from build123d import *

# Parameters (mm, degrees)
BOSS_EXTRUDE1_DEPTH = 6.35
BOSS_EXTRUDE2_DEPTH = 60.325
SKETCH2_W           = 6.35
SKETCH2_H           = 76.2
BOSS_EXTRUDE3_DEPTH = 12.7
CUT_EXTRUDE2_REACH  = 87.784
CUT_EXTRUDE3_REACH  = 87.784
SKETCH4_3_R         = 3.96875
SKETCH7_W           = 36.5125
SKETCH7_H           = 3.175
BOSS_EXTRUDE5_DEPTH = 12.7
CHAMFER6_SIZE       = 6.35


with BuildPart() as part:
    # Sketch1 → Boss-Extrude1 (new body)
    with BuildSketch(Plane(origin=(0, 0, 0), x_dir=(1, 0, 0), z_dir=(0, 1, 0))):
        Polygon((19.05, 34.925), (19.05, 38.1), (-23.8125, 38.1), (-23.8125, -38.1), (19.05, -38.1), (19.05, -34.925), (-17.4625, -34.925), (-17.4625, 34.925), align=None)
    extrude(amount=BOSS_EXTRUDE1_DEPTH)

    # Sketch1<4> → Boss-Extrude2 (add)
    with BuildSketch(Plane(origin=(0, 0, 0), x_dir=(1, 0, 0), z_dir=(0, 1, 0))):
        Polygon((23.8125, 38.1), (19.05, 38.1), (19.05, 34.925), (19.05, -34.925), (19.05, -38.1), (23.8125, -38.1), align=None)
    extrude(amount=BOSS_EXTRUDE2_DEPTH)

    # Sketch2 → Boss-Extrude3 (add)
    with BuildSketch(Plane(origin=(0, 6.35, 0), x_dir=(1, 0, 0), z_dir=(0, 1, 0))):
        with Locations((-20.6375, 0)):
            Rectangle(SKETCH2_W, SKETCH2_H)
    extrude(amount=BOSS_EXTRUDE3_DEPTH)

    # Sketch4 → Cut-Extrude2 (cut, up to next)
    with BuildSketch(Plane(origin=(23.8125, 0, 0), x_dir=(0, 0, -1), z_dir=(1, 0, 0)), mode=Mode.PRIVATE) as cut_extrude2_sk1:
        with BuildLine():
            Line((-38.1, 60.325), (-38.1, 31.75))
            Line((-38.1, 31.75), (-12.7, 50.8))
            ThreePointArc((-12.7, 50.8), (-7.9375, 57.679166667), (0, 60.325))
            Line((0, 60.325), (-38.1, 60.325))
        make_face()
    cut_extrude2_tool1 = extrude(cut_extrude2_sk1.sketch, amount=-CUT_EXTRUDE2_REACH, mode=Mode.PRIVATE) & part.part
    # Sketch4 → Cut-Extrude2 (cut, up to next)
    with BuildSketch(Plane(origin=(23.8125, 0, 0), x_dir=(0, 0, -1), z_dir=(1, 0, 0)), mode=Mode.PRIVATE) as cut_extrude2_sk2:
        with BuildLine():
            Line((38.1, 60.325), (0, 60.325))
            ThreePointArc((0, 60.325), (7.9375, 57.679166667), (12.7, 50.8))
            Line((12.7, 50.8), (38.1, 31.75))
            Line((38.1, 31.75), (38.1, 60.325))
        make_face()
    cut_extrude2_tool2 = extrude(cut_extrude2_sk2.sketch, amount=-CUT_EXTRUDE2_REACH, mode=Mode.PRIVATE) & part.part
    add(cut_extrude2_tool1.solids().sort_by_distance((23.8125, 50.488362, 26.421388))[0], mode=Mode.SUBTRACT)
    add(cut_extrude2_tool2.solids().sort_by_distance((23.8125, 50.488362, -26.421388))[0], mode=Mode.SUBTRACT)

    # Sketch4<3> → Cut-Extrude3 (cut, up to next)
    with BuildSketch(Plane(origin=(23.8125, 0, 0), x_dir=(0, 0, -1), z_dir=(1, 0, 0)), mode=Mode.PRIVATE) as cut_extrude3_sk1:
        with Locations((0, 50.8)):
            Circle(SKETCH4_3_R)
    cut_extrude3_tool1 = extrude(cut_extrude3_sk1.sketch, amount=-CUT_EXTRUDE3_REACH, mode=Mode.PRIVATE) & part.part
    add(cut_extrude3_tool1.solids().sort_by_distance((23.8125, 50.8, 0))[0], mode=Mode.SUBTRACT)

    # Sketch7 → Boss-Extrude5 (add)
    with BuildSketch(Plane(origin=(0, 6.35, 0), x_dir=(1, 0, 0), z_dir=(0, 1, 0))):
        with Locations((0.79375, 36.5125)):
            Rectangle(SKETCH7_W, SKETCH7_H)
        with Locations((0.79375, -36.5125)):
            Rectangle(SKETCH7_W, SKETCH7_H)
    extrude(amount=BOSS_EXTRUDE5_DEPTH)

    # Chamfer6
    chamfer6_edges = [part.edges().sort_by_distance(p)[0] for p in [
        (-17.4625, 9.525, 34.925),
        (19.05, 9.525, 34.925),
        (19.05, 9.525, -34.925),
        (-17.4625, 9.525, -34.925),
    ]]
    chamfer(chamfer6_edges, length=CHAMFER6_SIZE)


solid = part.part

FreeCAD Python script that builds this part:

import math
import FreeCAD as App
import Part
import Sketcher
Q = App.Units.Quantity


def edges_at(feature, points):
    """Names of the edges that pass closest to the given points."""
    edges = feature.Shape.Edges
    near = lambda p: min(range(len(edges)), key=lambda i: edges[i].distToShape(Part.Vertex(*p))[0])
    return sorted({f"Edge{near(p) + 1}" for p in points})


def add_polygon(sketch, points):
    """Adds a closed chain of lines whose ends are joined by coincident constraints."""
    first, n = sketch.GeometryCount, len(points)
    for a, b in zip(points, points[1:] + points[:1]):
        sketch.addGeometry(Part.LineSegment(App.Vector(*a, 0), App.Vector(*b, 0)), False)
    for i in range(n):
        sketch.addConstraint(Sketcher.Constraint("Coincident", first + i, 2, first + (i + 1) % n, 1))

doc = App.newDocument("Part")
body = doc.addObject("PartDesign::Body", "Body")

sketch1 = body.newObject("Sketcher::SketchObject", "Sketch")
sketch1.AttachmentSupport = (doc.getObject("XZ_Plane"), [""])
sketch1.MapMode = "FlatFace"
add_polygon(sketch1, [(19.1, -34.9), (19.1, -38.1), (-23.8, -38.1), (-23.8, 38.1), (19.1, 38.1), (19.1, 34.9), (-17.5, 34.9), (-17.5, -34.9)])
sketch1.addConstraint(Sketcher.Constraint("Vertical", 0))
sketch1.addConstraint(Sketcher.Constraint("Horizontal", 1))
sketch1.addConstraint(Sketcher.Constraint("Vertical", 2))
sketch1.addConstraint(Sketcher.Constraint("Horizontal", 3))
sketch1.addConstraint(Sketcher.Constraint("Vertical", 4))
sketch1.addConstraint(Sketcher.Constraint("Horizontal", 5))
sketch1.addConstraint(Sketcher.Constraint("Vertical", 6))
sketch1.addConstraint(Sketcher.Constraint("Horizontal", 7))
sketch1.addConstraint(Sketcher.Constraint("Symmetric", 0, 2, 3, 2, -1))
sketch1.addConstraint(Sketcher.Constraint("Equal", 0, 4))
sketch1.addConstraint(Sketcher.Constraint("DistanceY", 2, 1, 2, 2, Q("3 in")))
sketch1.addConstraint(Sketcher.Constraint("DistanceY", 6, 2, 6, 1, Q("2.75 in")))
sketch1.addConstraint(Sketcher.Constraint("DistanceX", 1, 2, 1, 1, Q("1.6875 in")))
sketch1.addConstraint(Sketcher.Constraint("DistanceX", 5, 2, 5, 1, Q("1.4375 in")))
sketch1.addConstraint(Sketcher.Constraint("DistanceX", -1, 1, 0, 2, Q("0.75 in")))
pad1 = body.newObject("PartDesign::Pad", "Pad")
pad1.Profile = sketch1
pad1.Length = Q("0.25 in")
pad1.Reversed = True

sketch2 = body.newObject("Sketcher::SketchObject", "Sketch001")
sketch2.AttachmentSupport = (doc.getObject("XZ_Plane"), [""])
sketch2.MapMode = "FlatFace"
add_polygon(sketch2, [(23.8, -38.1), (19.1, -38.1), (19.1, 38.1), (23.8, 38.1)])
sketch2.addConstraint(Sketcher.Constraint("Horizontal", 0))
sketch2.addConstraint(Sketcher.Constraint("Vertical", 1))
sketch2.addConstraint(Sketcher.Constraint("Horizontal", 2))
sketch2.addConstraint(Sketcher.Constraint("Vertical", 3))
sketch2.addConstraint(Sketcher.Constraint("DistanceY", 1, 1, 1, 2, Q("3 in")))
sketch2.addConstraint(Sketcher.Constraint("DistanceY", 0, 2, -1, 1, Q("1.5 in")))
sketch2.addConstraint(Sketcher.Constraint("DistanceX", 0, 2, 0, 1, Q("0.1875 in")))
sketch2.addConstraint(Sketcher.Constraint("DistanceX", -1, 1, 0, 2, Q("0.75 in")))
pad2 = body.newObject("PartDesign::Pad", "Pad001")
pad2.Profile = sketch2
pad2.Length = Q("2.375 in")
pad2.Reversed = True

sketch3 = body.newObject("Sketcher::SketchObject", "Sketch002")
sketch3.AttachmentSupport = (doc.getObject("XZ_Plane"), [""])
sketch3.MapMode = "FlatFace"
sketch3.AttachmentOffset = App.Placement(App.Vector(0, 0, -0.25 * 25.4), App.Rotation())
add_polygon(sketch3, [(-24, -38), (-24, 38), (-17, 38), (-17, -38)])
sketch3.addConstraint(Sketcher.Constraint("Vertical", 0))
sketch3.addConstraint(Sketcher.Constraint("Horizontal", 1))
sketch3.addConstraint(Sketcher.Constraint("Vertical", 2))
sketch3.addConstraint(Sketcher.Constraint("Horizontal", 3))
sketch3.addConstraint(Sketcher.Constraint("DistanceY", 0, 1, 0, 2, Q("3 in")))
sketch3.addConstraint(Sketcher.Constraint("DistanceX", 1, 1, 1, 2, Q("0.25 in")))
sketch3.addConstraint(Sketcher.Constraint("DistanceY", -1, 1, 0, 2, Q("1.5 in")))
sketch3.addConstraint(Sketcher.Constraint("DistanceX", 0, 2, -1, 1, Q("0.9375 in")))
pad3 = body.newObject("PartDesign::Pad", "Pad002")
pad3.Profile = sketch3
pad3.Length = Q("0.5 in")
pad3.Reversed = True

sketch4 = body.newObject("Sketcher::SketchObject", "Sketch003")
sketch4.AttachmentSupport = (doc.getObject("YZ_Plane"), [""])
sketch4.MapMode = "FlatFace"
sketch4.AttachmentOffset = App.Placement(App.Vector(0, 0, 0.9375 * 25.4), App.Rotation())
sketch4.addGeometry(Part.LineSegment(App.Vector(60, 38, 0), App.Vector(32, 38, 0)), False)
sketch4.addGeometry(Part.LineSegment(App.Vector(32, 38, 0), App.Vector(51, 13, 0)), False)
sketch4.addGeometry(Part.ArcOfCircle(Part.Circle(App.Vector(47, 0, 0), App.Vector(0, 0, 1), 13), math.radians(0), math.radians(74)), False)
sketch4.addGeometry(Part.LineSegment(App.Vector(60, 0, 0), App.Vector(60, 38, 0)), False)
sketch4.addConstraint(Sketcher.Constraint("Coincident", 0, 2, 1, 1))
sketch4.addConstraint(Sketcher.Constraint("Coincident", 1, 2, 2, 2))
sketch4.addConstraint(Sketcher.Constraint("Tangent", 2, 1, 3, 1))
sketch4.addConstraint(Sketcher.Constraint("Coincident", 3, 2, 0, 1))
sketch4.addConstraint(Sketcher.Constraint("Horizontal", 0))
sketch4.addConstraint(Sketcher.Constraint("Vertical", 3))
sketch4.addConstraint(Sketcher.Constraint("PointOnObject", 2, 3, -1))
sketch4.addConstraint(Sketcher.Constraint("DistanceY", 3, 1, 3, 2, Q("1.5 in")))
sketch4.addConstraint(Sketcher.Constraint("DistanceX", -1, 1, 1, 2, Q("2 in")))
sketch4.addConstraint(Sketcher.Constraint("DistanceY", 1, 2, 0, 2, Q("1 in")))
sketch4.addConstraint(Sketcher.Constraint("Distance", 1, Q("1.25 in")))
sketch4.addConstraint(Sketcher.Constraint("DistanceX", 0, 2, 0, 1, Q("1.125 in")))
pocket1 = body.newObject("PartDesign::Pocket", "Pocket")
pocket1.Profile = sketch4
pocket1.Type = "UpToFirst"

sketch5 = body.newObject("Sketcher::SketchObject", "Sketch004")
sketch5.AttachmentSupport = (doc.getObject("YZ_Plane"), [""])
sketch5.MapMode = "FlatFace"
sketch5.AttachmentOffset = App.Placement(App.Vector(0, 0, 0.9375 * 25.4), App.Rotation())
sketch5.addGeometry(Part.LineSegment(App.Vector(60, -38, 0), App.Vector(60, 0, 0)), False)
sketch5.addGeometry(Part.ArcOfCircle(Part.Circle(App.Vector(47, 0, 0), App.Vector(0, 0, 1), 13), math.radians(-74), math.radians(0)), False)
sketch5.addGeometry(Part.LineSegment(App.Vector(51, -13, 0), App.Vector(32, -38, 0)), False)
sketch5.addGeometry(Part.LineSegment(App.Vector(32, -38, 0), App.Vector(60, -38, 0)), False)
sketch5.addConstraint(Sketcher.Constraint("Tangent", 0, 2, 1, 2))
sketch5.addConstraint(Sketcher.Constraint("Coincident", 1, 1, 2, 1))
sketch5.addConstraint(Sketcher.Constraint("Coincident", 2, 2, 3, 1))
sketch5.addConstraint(Sketcher.Constraint("Coincident", 3, 2, 0, 1))
sketch5.addConstraint(Sketcher.Constraint("Vertical", 0))
sketch5.addConstraint(Sketcher.Constraint("Horizontal", 3))
sketch5.addConstraint(Sketcher.Constraint("PointOnObject", 1, 3, -1))
sketch5.addConstraint(Sketcher.Constraint("DistanceY", 0, 1, 0, 2, Q("1.5 in")))
sketch5.addConstraint(Sketcher.Constraint("DistanceX", -1, 1, 1, 1, Q("2 in")))
sketch5.addConstraint(Sketcher.Constraint("DistanceY", 2, 2, 1, 1, Q("1 in")))
sketch5.addConstraint(Sketcher.Constraint("Distance", 2, Q("1.25 in")))
sketch5.addConstraint(Sketcher.Constraint("DistanceX", 3, 1, 3, 2, Q("1.125 in")))
pocket2 = body.newObject("PartDesign::Pocket", "Pocket001")
pocket2.Profile = sketch5
pocket2.Type = "UpToFirst"

sketch6 = body.newObject("Sketcher::SketchObject", "Sketch005")
sketch6.AttachmentSupport = (doc.getObject("YZ_Plane"), [""])
sketch6.MapMode = "FlatFace"
sketch6.AttachmentOffset = App.Placement(App.Vector(0, 0, 0.9375 * 25.4), App.Rotation())
sketch6.addGeometry(Part.Circle(App.Vector(50.8, 0, 0), App.Vector(0, 0, 1), 4), False)
sketch6.addConstraint(Sketcher.Constraint("PointOnObject", 0, 3, -1))
sketch6.addConstraint(Sketcher.Constraint("Diameter", 0, Q("0.3125 in")))
sketch6.addConstraint(Sketcher.Constraint("DistanceX", -1, 1, 0, 3, Q("2 in")))
pocket3 = body.newObject("PartDesign::Pocket", "Pocket002")
pocket3.Profile = sketch6
pocket3.Type = "UpToFirst"

sketch7 = body.newObject("Sketcher::SketchObject", "Sketch006")
sketch7.AttachmentSupport = (doc.getObject("XZ_Plane"), [""])
sketch7.MapMode = "FlatFace"
sketch7.AttachmentOffset = App.Placement(App.Vector(0, 0, -0.25 * 25.4), App.Rotation())
add_polygon(sketch7, [(-17.5, -38.1), (-17.5, -34.9), (19.1, -34.9), (19.1, -38.1)])
add_polygon(sketch7, [(-17.5, 34.9), (-17.5, 38.1), (19.1, 38.1), (19.1, 34.9)])
sketch7.addConstraint(Sketcher.Constraint("Vertical", 0))
sketch7.addConstraint(Sketcher.Constraint("Horizontal", 1))
sketch7.addConstraint(Sketcher.Constraint("Vertical", 2))
sketch7.addConstraint(Sketcher.Constraint("Horizontal", 3))
sketch7.addConstraint(Sketcher.Constraint("Vertical", 4))
sketch7.addConstraint(Sketcher.Constraint("Horizontal", 5))
sketch7.addConstraint(Sketcher.Constraint("Vertical", 6))
sketch7.addConstraint(Sketcher.Constraint("Horizontal", 7))
sketch7.addConstraint(Sketcher.Constraint("Symmetric", 3, 2, 4, 2, -1))
sketch7.addConstraint(Sketcher.Constraint("Symmetric", 1, 2, 6, 2, -1))
sketch7.addConstraint(Sketcher.Constraint("DistanceY", 3, 2, 4, 2, Q("3 in")))
sketch7.addConstraint(Sketcher.Constraint("DistanceX", 1, 1, 1, 2, Q("1.4375 in")))
sketch7.addConstraint(Sketcher.Constraint("DistanceY", 0, 1, 0, 2, Q("0.125 in")))
sketch7.addConstraint(Sketcher.Constraint("DistanceX", -1, 1, 1, 2, Q("0.75 in")))
pad4 = body.newObject("PartDesign::Pad", "Pad003")
pad4.Profile = sketch7
pad4.Length = Q("0.5 in")
pad4.Reversed = True
doc.recompute()

chamfer = body.newObject("PartDesign::Chamfer", "Chamfer")
chamfer.Base = (pad4, edges_at(pad4, [
    (-17.462, 9.525, 34.925),
    (19.05, 9.525, 34.925),
    (19.05, 9.525, -34.925),
    (-17.462, 9.525, -34.925),
]))
chamfer.Size = Q("0.25 in")

doc.recompute()
